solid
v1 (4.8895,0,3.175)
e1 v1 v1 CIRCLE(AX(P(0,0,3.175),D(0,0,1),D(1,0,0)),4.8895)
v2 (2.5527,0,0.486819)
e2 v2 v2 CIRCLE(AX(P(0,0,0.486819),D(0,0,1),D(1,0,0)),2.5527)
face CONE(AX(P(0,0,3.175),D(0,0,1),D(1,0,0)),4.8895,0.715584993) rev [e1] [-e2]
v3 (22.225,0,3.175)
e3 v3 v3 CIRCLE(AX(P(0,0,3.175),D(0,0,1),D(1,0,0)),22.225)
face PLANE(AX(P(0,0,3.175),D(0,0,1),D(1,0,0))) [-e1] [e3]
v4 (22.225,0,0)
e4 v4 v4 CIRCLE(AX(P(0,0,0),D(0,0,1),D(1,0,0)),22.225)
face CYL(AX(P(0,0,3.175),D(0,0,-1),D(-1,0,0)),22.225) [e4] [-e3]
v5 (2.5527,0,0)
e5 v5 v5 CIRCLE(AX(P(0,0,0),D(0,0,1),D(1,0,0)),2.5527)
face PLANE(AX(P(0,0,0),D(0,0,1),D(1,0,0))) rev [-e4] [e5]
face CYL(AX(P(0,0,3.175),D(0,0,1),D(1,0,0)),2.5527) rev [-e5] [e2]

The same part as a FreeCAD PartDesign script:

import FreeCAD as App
import Part
import Sketcher
Q = App.Units.Quantity

doc = App.newDocument("Part")
params = doc.addObject("Spreadsheet::Sheet", "Params")
for row, (alias, value) in enumerate([
    ("sketch1_diameter", "1.75 in"),
    ("sketch1_diameter2", "0.196 in"),
    ("pad1_length", "0.125 in"),
    ("sketch2_height", "0.125 in"),
    ("groove_angle", "360 deg"),
], start=1):
    params.set(f"A{row}", alias)
    params.set(f"B{row}", "=" + value)
    params.setAlias(f"B{row}", alias)

body = doc.addObject("PartDesign::Body", "Body")

sketch1 = body.newObject("Sketcher::SketchObject", "Sketch")
sketch1.AttachmentSupport = (doc.getObject("XY_Plane"), [""])
sketch1.MapMode = "FlatFace"
sketch1.addGeometry([
    Part.Circle(App.Vector(0, 0, 0), App.Vector(0, 0, 1), 22.225),
    Part.Circle(App.Vector(0, 0, 0), App.Vector(0, 0, 1), 2.4892),
], False)
sketch1.addConstraint([
    Sketcher.Constraint("Coincident", 0, 3, -1, 1),
    Sketcher.Constraint("Coincident", 1, 3, -1, 1),
    Sketcher.Constraint("Diameter", 0, Q("1.75 in")),
    Sketcher.Constraint("Diameter", 1, Q("0.196 in")),
])
sketch1.setExpression("Constraints[2]", "Params.sketch1_diameter")
sketch1.setExpression("Constraints[3]", "Params.sketch1_diameter2")
pad1 = body.newObject("PartDesign::Pad", "Pad")
pad1.Profile = sketch1
pad1.setExpression("Length", "Params.pad1_length")

sketch2 = body.newObject("Sketcher::SketchObject", "Sketch001")
sketch2.AttachmentSupport = (doc.getObject("YZ_Plane"), [""])
sketch2.MapMode = "FlatFace"
sketch2.addGeometry([
    Part.LineSegment(App.Vector(0, 0, 0), App.Vector(0, 3.175, 0)),
    Part.LineSegment(App.Vector(0, 3.175, 0), App.Vector(-4.8895, 3.175, 0)),
    Part.LineSegment(App.Vector(-4.8895, 3.175, 0), App.Vector(-2.5527, 0.486819, 0)),
    Part.LineSegment(App.Vector(-2.5527, 0.486819, 0), App.Vector(-2.5527, 0, 0)),
    Part.LineSegment(App.Vector(-2.5527, 0, 0), App.Vector(0, 0, 0)),
], False)
sketch2.addConstraint([
    Sketcher.Constraint("Coincident", 0, 2, 1, 1),
    Sketcher.Constraint("Coincident", 1, 2, 2, 1),
    Sketcher.Constraint("Coincident", 2, 2, 3, 1),
    Sketcher.Constraint("Coincident", 3, 2, 4, 1),
    Sketcher.Constraint("Coincident", 4, 2, 0, 1),
    Sketcher.Constraint("Vertical", 0),
    Sketcher.Constraint("Horizontal", 1),
    Sketcher.Constraint("Vertical", 3),
    Sketcher.Constraint("Horizontal", 4),
    Sketcher.Constraint("Coincident", 4, 2, -1, 1),
    Sketcher.Constraint("Angle", 2, Q("-49 deg")),
    Sketcher.Constraint("DistanceY", 0, 1, 0, 2, Q("0.125 in")),
    Sketcher.Constraint("DistanceX", 1, 2, 1, 1, Q("0.1925 in")),
    Sketcher.Constraint("DistanceX", 4, 1, 4, 2, Q("0.1005 in")),
])
sketch2.setExpression("Constraints[11]", "Params.sketch2_height")
groove = body.newObject("PartDesign::Groove", "Groove")
groove.Profile = sketch2
groove.ReferenceAxis = (sketch2, ["V_Axis"])
groove.setExpression("Angle", "Params.groove_angle")

doc.recompute()
